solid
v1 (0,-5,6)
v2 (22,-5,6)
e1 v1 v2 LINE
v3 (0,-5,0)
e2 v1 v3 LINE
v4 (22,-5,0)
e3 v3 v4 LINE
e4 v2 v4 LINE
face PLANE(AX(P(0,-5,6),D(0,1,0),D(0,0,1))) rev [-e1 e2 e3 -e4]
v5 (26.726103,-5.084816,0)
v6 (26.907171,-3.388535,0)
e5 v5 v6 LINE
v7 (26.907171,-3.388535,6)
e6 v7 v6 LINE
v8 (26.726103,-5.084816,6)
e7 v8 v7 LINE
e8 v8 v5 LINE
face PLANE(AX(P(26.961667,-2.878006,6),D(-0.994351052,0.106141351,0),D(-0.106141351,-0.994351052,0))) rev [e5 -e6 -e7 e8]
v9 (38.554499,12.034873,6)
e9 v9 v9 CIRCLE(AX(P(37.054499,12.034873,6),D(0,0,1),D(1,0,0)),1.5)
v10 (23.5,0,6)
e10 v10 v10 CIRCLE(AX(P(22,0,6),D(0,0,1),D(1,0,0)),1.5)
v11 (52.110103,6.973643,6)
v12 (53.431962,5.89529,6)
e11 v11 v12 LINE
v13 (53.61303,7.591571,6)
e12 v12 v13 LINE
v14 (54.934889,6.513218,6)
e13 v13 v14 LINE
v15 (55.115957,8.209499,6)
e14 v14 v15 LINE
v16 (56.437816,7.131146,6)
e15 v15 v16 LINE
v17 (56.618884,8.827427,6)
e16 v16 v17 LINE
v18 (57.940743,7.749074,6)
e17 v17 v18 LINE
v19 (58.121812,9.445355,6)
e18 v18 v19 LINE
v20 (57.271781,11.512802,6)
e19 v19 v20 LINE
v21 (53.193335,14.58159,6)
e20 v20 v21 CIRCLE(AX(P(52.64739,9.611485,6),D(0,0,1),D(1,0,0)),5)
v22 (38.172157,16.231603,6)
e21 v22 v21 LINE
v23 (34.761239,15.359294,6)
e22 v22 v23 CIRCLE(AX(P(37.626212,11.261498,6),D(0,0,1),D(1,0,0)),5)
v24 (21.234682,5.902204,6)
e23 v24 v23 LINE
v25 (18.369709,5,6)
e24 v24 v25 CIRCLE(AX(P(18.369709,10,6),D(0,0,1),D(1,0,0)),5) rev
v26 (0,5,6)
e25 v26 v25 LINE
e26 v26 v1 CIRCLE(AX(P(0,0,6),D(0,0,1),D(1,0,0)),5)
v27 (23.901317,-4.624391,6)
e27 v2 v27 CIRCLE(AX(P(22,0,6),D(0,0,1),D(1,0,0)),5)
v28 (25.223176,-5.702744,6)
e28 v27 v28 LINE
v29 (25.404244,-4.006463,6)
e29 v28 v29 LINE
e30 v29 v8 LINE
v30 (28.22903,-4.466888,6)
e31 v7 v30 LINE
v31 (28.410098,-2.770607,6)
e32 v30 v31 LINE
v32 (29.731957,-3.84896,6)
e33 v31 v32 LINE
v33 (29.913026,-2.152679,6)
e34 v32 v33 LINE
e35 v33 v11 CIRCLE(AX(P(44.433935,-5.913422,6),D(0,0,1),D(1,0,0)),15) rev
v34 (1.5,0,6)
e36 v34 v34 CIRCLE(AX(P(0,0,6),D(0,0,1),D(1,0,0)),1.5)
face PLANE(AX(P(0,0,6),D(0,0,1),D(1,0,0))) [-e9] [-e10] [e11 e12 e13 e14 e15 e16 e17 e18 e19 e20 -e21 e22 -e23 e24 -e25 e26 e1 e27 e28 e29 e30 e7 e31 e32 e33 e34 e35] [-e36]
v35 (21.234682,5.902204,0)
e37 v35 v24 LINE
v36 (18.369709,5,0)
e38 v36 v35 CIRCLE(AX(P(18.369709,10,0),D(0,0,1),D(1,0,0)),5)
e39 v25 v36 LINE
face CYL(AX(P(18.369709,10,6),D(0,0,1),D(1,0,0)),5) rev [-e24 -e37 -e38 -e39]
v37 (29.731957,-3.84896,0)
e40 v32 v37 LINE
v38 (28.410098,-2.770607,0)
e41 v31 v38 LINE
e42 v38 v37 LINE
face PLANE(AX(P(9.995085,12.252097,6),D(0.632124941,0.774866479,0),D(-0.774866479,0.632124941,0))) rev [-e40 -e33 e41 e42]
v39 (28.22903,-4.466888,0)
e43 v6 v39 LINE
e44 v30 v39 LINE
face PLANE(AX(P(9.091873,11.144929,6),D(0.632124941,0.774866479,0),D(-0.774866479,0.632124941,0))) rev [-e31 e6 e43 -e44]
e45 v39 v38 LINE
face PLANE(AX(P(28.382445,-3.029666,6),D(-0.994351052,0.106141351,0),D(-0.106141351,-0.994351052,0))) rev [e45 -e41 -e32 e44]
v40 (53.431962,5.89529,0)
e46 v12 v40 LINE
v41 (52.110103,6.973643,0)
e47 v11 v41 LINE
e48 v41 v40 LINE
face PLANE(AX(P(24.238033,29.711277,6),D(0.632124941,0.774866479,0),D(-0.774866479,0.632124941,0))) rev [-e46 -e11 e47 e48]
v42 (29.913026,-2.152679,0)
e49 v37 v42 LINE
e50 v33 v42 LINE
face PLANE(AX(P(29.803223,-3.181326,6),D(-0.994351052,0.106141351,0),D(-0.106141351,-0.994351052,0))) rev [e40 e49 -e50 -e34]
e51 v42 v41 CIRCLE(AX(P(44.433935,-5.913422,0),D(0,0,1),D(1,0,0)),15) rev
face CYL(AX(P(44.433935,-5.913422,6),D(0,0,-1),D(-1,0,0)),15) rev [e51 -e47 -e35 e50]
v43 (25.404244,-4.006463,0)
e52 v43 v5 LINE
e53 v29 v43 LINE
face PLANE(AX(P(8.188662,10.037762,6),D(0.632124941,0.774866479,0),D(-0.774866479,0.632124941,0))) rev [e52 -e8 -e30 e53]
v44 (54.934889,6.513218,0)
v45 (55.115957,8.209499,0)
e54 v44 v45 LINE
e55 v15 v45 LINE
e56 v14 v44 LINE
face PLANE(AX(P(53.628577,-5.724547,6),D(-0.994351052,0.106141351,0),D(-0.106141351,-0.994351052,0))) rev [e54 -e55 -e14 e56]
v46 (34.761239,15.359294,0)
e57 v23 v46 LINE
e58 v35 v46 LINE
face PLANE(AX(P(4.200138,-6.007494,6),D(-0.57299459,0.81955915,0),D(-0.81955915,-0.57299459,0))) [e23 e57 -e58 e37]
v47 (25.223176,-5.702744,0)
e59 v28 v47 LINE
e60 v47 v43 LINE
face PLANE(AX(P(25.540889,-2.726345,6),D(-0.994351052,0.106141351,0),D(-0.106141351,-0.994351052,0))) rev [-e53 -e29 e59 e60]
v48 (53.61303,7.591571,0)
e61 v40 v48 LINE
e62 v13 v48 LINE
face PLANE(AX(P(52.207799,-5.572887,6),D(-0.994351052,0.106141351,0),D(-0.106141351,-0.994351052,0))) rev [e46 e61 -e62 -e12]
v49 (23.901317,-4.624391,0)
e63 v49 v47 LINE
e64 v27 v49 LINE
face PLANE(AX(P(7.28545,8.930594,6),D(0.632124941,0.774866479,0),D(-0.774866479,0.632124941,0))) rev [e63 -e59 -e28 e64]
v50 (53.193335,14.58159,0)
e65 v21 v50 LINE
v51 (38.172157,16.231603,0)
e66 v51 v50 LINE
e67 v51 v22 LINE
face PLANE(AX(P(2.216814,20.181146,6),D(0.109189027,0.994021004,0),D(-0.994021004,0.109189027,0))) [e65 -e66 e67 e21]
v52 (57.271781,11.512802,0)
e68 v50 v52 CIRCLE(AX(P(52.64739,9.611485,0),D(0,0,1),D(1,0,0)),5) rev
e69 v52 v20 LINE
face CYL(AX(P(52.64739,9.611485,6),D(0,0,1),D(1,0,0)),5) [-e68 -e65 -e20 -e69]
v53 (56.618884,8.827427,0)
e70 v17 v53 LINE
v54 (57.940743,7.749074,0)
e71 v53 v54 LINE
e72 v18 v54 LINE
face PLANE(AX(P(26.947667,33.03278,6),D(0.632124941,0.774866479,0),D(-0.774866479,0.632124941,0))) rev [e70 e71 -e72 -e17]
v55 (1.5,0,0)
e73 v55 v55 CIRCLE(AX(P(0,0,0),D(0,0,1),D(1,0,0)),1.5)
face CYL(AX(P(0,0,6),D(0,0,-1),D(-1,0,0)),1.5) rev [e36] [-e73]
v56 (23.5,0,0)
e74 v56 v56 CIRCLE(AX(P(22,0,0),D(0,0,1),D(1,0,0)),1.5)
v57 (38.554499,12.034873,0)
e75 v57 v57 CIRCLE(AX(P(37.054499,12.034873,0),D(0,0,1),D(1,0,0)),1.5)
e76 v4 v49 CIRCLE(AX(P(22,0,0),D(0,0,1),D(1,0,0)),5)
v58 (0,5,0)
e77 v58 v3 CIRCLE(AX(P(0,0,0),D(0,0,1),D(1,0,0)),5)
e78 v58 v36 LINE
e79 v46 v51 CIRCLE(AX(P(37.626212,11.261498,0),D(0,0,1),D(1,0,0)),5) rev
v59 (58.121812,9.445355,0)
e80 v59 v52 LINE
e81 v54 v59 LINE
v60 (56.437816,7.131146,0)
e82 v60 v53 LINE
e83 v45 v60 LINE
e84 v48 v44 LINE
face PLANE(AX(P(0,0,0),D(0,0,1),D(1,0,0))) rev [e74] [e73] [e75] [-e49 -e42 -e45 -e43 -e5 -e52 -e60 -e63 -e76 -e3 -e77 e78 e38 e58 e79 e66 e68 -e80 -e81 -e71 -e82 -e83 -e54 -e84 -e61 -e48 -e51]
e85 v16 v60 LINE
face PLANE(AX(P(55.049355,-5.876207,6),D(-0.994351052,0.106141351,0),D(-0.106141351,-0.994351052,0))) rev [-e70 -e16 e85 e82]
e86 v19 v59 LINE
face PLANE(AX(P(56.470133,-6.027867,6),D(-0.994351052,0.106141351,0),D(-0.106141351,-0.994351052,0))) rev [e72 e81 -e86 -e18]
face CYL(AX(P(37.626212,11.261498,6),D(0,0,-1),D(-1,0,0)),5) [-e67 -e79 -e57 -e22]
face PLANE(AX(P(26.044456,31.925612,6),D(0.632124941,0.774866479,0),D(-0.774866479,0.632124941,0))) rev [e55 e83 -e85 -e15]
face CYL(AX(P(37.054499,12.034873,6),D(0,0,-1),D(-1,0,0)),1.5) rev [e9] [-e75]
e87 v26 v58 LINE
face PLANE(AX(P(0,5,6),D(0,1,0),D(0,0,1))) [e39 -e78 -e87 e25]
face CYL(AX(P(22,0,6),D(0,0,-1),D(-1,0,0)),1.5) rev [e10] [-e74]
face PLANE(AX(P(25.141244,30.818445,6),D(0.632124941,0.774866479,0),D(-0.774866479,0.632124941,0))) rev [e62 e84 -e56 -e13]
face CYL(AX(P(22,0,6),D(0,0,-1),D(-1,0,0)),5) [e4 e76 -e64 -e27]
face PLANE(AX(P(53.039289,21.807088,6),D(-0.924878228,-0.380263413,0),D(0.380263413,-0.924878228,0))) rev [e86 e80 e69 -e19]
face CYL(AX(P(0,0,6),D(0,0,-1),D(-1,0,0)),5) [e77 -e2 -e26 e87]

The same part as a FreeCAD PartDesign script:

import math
import FreeCAD as App
import Part
import Sketcher

V = App.Vector
Q = App.Units.Quantity


def edges_at(feature, points):
    """Names of the edges that pass closest to the given points."""
    edges = feature.Shape.Edges
    near = lambda p: min(range(len(edges)), key=lambda i: edges[i].distToShape(Part.Vertex(*p))[0])
    return sorted({f"Edge{near(p) + 1}" for p in points})

doc = App.newDocument("Part")
body = doc.addObject("PartDesign::Body", "Body")

# Sketch on XY plane
sketch1 = body.newObject("Sketcher::SketchObject", "Sketch")
sketch1.AttachmentSupport = (doc.getObject("XY_Plane"), [""])
sketch1.MapMode = "FlatFace"
sketch1.addGeometry([
    Part.LineSegment(V(19.9, 5, 0), V(0, 5, 0)),  # 0
    Part.ArcOfCircle(Part.Circle(V(0, 0, 0), V(0, 0, 1), 5), math.radians(90), math.radians(270)),  # 1
    Part.LineSegment(V(0, -5, 0), V(22, -5, 0)),  # 2
    Part.ArcOfCircle(Part.Circle(V(22, 0, 0), V(0, 0, 1), 5), math.radians(-90), math.radians(-68)),  # 3
    Part.LineSegment(V(23.9, -4.6, 0), V(25.2, -5.7, 0)),  # 4
    Part.LineSegment(V(25.2, -5.7, 0), V(25.4, -4, 0)),  # 5
    Part.LineSegment(V(25.4, -4, 0), V(26.7, -5.1, 0)),  # 6
    Part.LineSegment(V(26.7, -5.1, 0), V(26.9, -3.4, 0)),  # 7
    Part.LineSegment(V(26.9, -3.4, 0), V(28.2, -4.5, 0)),  # 8
    Part.LineSegment(V(28.2, -4.5, 0), V(28.4, -2.8, 0)),  # 9
    Part.LineSegment(V(28.4, -2.8, 0), V(29.7, -3.8, 0)),  # 10
    Part.LineSegment(V(29.7, -3.8, 0), V(29.9, -2.2, 0)),  # 11
    Part.ArcOfCircle(Part.Circle(V(44.4, -5.9, 0), V(0, 0, 1), 15), math.radians(59), math.radians(165)),  # 12
    Part.LineSegment(V(52.1, 7, 0), V(53.4, 5.9, 0)),  # 13
    Part.LineSegment(V(53.4, 5.9, 0), V(53.6, 7.6, 0)),  # 14
    Part.LineSegment(V(53.6, 7.6, 0), V(54.9, 6.5, 0)),  # 15
    Part.LineSegment(V(54.9, 6.5, 0), V(55.1, 8.2, 0)),  # 16
    Part.LineSegment(V(55.1, 8.2, 0), V(56.4, 7.1, 0)),  # 17
    Part.LineSegment(V(56.4, 7.1, 0), V(56.6, 8.8, 0)),  # 18
    Part.LineSegment(V(56.6, 8.8, 0), V(57.9, 7.7, 0)),  # 19
    Part.LineSegment(V(57.9, 7.7, 0), V(58.1, 9.4, 0)),  # 20
    Part.LineSegment(V(58.1, 9.4, 0), V(56.1, 14.3, 0)),  # 21
    Part.LineSegment(V(56.1, 14.3, 0), V(36.3, 16.4, 0)),  # 22
    Part.LineSegment(V(36.3, 16.4, 0), V(19.9, 5, 0)),  # 23
    Part.Circle(V(0, 0, 0), V(0, 0, 1), 1.5),  # 24
    Part.Circle(V(22, 0, 0), V(0, 0, 1), 1.5),  # 25
    Part.Circle(V(37.1, 12, 0), V(0, 0, 1), 1.5),  # 26
], False)
sketch1.addConstraint([
    Sketcher.Constraint("Tangent", 0, 2, 1, 1),
    Sketcher.Constraint("Tangent", 1, 2, 2, 1),
    Sketcher.Constraint("Tangent", 2, 2, 3, 1),
    Sketcher.Constraint("Coincident", 3, 2, 4, 1),
    Sketcher.Constraint("Coincident", 4, 2, 5, 1),
    Sketcher.Constraint("Coincident", 5, 2, 6, 1),
    Sketcher.Constraint("Coincident", 6, 2, 7, 1),
    Sketcher.Constraint("Coincident", 7, 2, 8, 1),
    Sketcher.Constraint("Coincident", 8, 2, 9, 1),
    Sketcher.Constraint("Coincident", 9, 2, 10, 1),
    Sketcher.Constraint("Coincident", 10, 2, 11, 1),
    Sketcher.Constraint("Coincident", 11, 2, 12, 2),
    Sketcher.Constraint("Coincident", 12, 1, 13, 1),
    Sketcher.Constraint("Coincident", 13, 2, 14, 1),
    Sketcher.Constraint("Coincident", 14, 2, 15, 1),
    Sketcher.Constraint("Coincident", 15, 2, 16, 1),
    Sketcher.Constraint("Coincident", 16, 2, 17, 1),
    Sketcher.Constraint("Coincident", 17, 2, 18, 1),
    Sketcher.Constraint("Coincident", 18, 2, 19, 1),
    Sketcher.Constraint("Coincident", 19, 2, 20, 1),
    Sketcher.Constraint("Coincident", 20, 2, 21, 1),
    Sketcher.Constraint("Coincident", 21, 2, 22, 1),
    Sketcher.Constraint("Coincident", 22, 2, 23, 1),
    Sketcher.Constraint("Coincident", 23, 2, 0, 1),
    Sketcher.Constraint("Horizontal", 0),
    Sketcher.Constraint("Horizontal", 2),
    Sketcher.Constraint("Coincident", 1, 3, -1, 1),
    Sketcher.Constraint("Coincident", 24, 3, -1, 1),
    Sketcher.Constraint("Coincident", 25, 3, 3, 3),
    Sketcher.Constraint("Equal", 1, 3),
    Sketcher.Constraint("Equal", 24, 25),
    Sketcher.Constraint("Equal", 25, 26),
    Sketcher.Constraint("Parallel", 4, 6),
    Sketcher.Constraint("Parallel", 5, 7),
    Sketcher.Constraint("Parallel", 6, 8),
    Sketcher.Constraint("Parallel", 7, 9),
    Sketcher.Constraint("Parallel", 8, 10),
    Sketcher.Constraint("Parallel", 9, 11),
    Sketcher.Constraint("Parallel", 10, 13),
    Sketcher.Constraint("Parallel", 11, 14),
    Sketcher.Constraint("Parallel", 13, 15),
    Sketcher.Constraint("Parallel", 14, 16),
    Sketcher.Constraint("Parallel", 15, 17),
    Sketcher.Constraint("Parallel", 16, 18),
    Sketcher.Constraint("Parallel", 17, 19),
    Sketcher.Constraint("Parallel", 18, 20),
    Sketcher.Constraint("Equal", 4, 5),
    Sketcher.Constraint("Equal", 5, 6),
    Sketcher.Constraint("Equal", 6, 7),
    Sketcher.Constraint("Equal", 7, 8),
    Sketcher.Constraint("Equal", 8, 9),
    Sketcher.Constraint("Equal", 9, 10),
    Sketcher.Constraint("Equal", 10, 11),
    Sketcher.Constraint("Equal", 11, 13),
    Sketcher.Constraint("Equal", 13, 14),
    Sketcher.Constraint("Equal", 14, 15),
    Sketcher.Constraint("Equal", 15, 16),
    Sketcher.Constraint("Equal", 16, 17),
    Sketcher.Constraint("Equal", 17, 18),
    Sketcher.Constraint("Equal", 18, 19),
    Sketcher.Constraint("Equal", 19, 20),
    Sketcher.Constraint("Equal", 22, 23),
    Sketcher.Constraint("Diameter", 24, 3.0),
    Sketcher.Constraint("Radius", 1, 5.0),
    Sketcher.Constraint("Radius", 12, 15.0),
    Sketcher.Constraint("DistanceX", 2, 1, 2, 2, 22.0),
    Sketcher.Constraint("Angle", 21, Q("112.35 deg")),
    Sketcher.Constraint("DistanceX", 0, 2, 0, 1, 19.944251),
    Sketcher.Constraint("DistanceX", -1, 1, 26, 3, 37.054499),
    Sketcher.Constraint("DistanceX", -1, 1, 9, 2, 28.410098),
    Sketcher.Constraint("DistanceY", -1, 1, 16, 2, 8.209499),
    Sketcher.Constraint("Distance", 4, 1.705918),
    Sketcher.Constraint("Distance", 21, 5.203059),
    Sketcher.Constraint("DistanceY", 3, 2, -1, 1, 4.624391),
    Sketcher.Constraint("DistanceX", -1, 1, 8, 2, 28.22903),
    Sketcher.Constraint("DistanceX", -1, 1, 13, 2, 53.431962),
    Sketcher.Constraint("DistanceY", -1, 1, 22, 2, 16.436962),
    Sketcher.Constraint("DistanceY", 12, 1, 26, 3, 5.06123),
])
pad1 = body.newObject("PartDesign::Pad", "Pad")
pad1.Profile = sketch1
pad1.Length = 6
doc.recompute()

fillet = body.newObject("PartDesign::Fillet", "Fillet")
fillet.Base = (pad1, edges_at(pad1, [(19.944, 5, 3), (36.303, 16.437, 3), (56.143, 14.258, 3)]))
fillet.Radius = 5

doc.recompute()
